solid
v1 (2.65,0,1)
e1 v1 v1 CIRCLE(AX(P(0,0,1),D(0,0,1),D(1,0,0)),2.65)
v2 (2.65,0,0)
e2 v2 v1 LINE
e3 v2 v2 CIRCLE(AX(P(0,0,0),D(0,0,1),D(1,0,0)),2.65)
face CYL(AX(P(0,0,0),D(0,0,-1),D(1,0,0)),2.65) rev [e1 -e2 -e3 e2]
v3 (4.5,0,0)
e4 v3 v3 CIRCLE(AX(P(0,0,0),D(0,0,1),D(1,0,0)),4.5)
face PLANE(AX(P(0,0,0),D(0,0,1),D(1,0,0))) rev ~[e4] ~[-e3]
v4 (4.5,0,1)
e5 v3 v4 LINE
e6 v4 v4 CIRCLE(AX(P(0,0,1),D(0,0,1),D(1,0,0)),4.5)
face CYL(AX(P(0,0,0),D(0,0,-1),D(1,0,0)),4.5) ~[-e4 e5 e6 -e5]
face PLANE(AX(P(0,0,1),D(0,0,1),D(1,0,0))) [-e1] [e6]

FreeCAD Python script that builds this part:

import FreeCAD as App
import Part
import Sketcher

V = App.Vector
Q = App.Units.Quantity

doc = App.newDocument("Part")
body = doc.addObject("PartDesign::Body", "Body")

# Sketch on XY plane
sketch1 = body.newObject("Sketcher::SketchObject", "Sketch")
sketch1.AttachmentSupport = (doc.getObject("XY_Plane"), [""])
sketch1.MapMode = "FlatFace"
sketch1.addGeometry([
    Part.Circle(V(0, 0, 0), V(0, 0, 1), 4.5),
    Part.Circle(V(0, 0, 0), V(0, 0, 1), 2.65),
], False)
sketch1.addConstraint([
    Sketcher.Constraint("Coincident", 0, 3, -1, 1),
    Sketcher.Constraint("Coincident", 1, 3, -1, 1),
    Sketcher.Constraint("Diameter", 0, Q("9 mm")),
    Sketcher.Constraint("Diameter", 1, Q("5.3 mm")),
])
pad1 = body.newObject("PartDesign::Pad", "Pad")
pad1.Profile = sketch1
pad1.Length = 1

doc.recompute()
